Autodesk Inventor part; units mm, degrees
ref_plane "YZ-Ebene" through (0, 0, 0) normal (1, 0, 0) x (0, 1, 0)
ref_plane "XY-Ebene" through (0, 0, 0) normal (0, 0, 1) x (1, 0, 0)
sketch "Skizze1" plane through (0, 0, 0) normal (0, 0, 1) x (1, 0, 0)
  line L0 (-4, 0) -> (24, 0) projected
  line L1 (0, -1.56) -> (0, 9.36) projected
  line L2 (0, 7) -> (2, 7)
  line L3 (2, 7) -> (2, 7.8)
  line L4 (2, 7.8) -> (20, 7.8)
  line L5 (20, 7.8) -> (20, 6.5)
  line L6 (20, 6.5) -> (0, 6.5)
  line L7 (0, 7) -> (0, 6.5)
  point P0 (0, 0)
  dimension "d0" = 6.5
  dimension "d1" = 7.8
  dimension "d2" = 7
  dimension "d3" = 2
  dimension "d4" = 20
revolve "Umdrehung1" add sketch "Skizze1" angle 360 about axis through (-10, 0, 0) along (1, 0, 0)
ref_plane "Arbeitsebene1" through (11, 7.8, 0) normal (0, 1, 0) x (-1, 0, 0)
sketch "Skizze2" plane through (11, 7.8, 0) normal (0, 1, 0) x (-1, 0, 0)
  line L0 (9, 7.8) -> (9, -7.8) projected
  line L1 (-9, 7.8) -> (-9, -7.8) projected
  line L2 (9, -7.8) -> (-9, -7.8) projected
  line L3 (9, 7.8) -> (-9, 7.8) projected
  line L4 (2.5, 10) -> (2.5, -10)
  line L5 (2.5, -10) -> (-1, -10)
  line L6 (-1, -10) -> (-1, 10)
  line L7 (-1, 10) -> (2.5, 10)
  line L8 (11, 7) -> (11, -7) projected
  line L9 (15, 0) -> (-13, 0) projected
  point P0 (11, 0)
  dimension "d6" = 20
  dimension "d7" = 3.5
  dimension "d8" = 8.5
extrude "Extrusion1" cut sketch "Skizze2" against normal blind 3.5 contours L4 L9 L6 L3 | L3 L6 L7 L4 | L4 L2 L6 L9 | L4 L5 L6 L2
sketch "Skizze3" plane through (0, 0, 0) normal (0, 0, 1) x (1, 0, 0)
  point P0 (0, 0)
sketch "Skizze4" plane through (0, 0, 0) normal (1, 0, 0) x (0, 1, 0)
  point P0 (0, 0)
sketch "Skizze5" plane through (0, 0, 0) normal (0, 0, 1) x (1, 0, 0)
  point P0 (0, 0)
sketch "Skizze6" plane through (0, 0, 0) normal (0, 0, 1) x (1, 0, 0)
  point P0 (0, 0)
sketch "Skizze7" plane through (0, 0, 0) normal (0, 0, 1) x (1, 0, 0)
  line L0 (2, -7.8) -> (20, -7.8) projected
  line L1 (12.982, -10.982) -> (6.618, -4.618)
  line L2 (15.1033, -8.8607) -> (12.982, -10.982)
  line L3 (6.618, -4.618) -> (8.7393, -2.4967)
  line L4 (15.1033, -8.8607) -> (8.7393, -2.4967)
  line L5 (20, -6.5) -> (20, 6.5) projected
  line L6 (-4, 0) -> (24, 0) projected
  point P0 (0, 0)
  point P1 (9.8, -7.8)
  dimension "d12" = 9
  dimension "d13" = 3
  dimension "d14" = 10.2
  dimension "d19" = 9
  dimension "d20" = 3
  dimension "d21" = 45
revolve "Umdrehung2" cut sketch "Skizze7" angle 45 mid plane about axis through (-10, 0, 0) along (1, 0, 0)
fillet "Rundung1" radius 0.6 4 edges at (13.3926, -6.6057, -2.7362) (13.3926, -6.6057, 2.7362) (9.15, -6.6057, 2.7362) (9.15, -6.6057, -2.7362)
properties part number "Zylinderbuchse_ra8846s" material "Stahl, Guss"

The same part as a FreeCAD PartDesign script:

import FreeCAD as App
import Part
import Sketcher
Q = App.Units.Quantity


def edges_at(feature, points):
    """Names of the edges that pass closest to the given points."""
    edges = feature.Shape.Edges
    near = lambda p: min(range(len(edges)), key=lambda i: edges[i].distToShape(Part.Vertex(*p))[0])
    return sorted({f"Edge{near(p) + 1}" for p in points})

doc = App.newDocument("Part")
params = doc.addObject("Spreadsheet::Sheet", "Params")
for row, (alias, value) in enumerate([
    ("sketch1_width", "20 mm"),
    ("sketch1_width2", "2 mm"),
    ("revolution_angle", "360 deg"),
    ("sketch2_height", "20 mm"),
    ("sketch2_width", "3.5 mm"),
    ("pocket1_length", "3.5 mm"),
    ("sketch3_length", "9 mm"),
    ("sketch3_length2", "3 mm"),
    ("groove_angle", "45 deg"),
    ("fillet_radius", "0.6 mm"),
], start=1):
    params.set(f"A{row}", alias)
    params.set(f"B{row}", "=" + value)
    params.setAlias(f"B{row}", alias)

body = doc.addObject("PartDesign::Body", "Body")

# Sketch on XY plane
sketch1 = body.newObject("Sketcher::SketchObject", "Sketch")
sketch1.AttachmentSupport = (doc.getObject("XY_Plane"), [""])
sketch1.MapMode = "FlatFace"
sketch1.addGeometry(Part.LineSegment(App.Vector(0, 7, 0), App.Vector(0, 6.5, 0)), False)
sketch1.addGeometry(Part.LineSegment(App.Vector(0, 6.5, 0), App.Vector(20, 6.5, 0)), False)
sketch1.addGeometry(Part.LineSegment(App.Vector(20, 6.5, 0), App.Vector(20, 7.8, 0)), False)
sketch1.addGeometry(Part.LineSegment(App.Vector(20, 7.8, 0), App.Vector(2, 7.8, 0)), False)
sketch1.addGeometry(Part.LineSegment(App.Vector(2, 7.8, 0), App.Vector(2, 7, 0)), False)
sketch1.addGeometry(Part.LineSegment(App.Vector(2, 7, 0), App.Vector(0, 7, 0)), False)
sketch1.addConstraint(Sketcher.Constraint("Coincident", 0, 2, 1, 1))
sketch1.addConstraint(Sketcher.Constraint("Coincident", 1, 2, 2, 1))
sketch1.addConstraint(Sketcher.Constraint("Coincident", 2, 2, 3, 1))
sketch1.addConstraint(Sketcher.Constraint("Coincident", 3, 2, 4, 1))
sketch1.addConstraint(Sketcher.Constraint("Coincident", 4, 2, 5, 1))
sketch1.addConstraint(Sketcher.Constraint("Coincident", 5, 2, 0, 1))
sketch1.addConstraint(Sketcher.Constraint("Vertical", 0))
sketch1.addConstraint(Sketcher.Constraint("Horizontal", 1))
sketch1.addConstraint(Sketcher.Constraint("Vertical", 2))
sketch1.addConstraint(Sketcher.Constraint("Horizontal", 3))
sketch1.addConstraint(Sketcher.Constraint("Vertical", 4))
sketch1.addConstraint(Sketcher.Constraint("Horizontal", 5))
sketch1.addConstraint(Sketcher.Constraint("PointOnObject", 0, 2, -2))
sketch1.addConstraint(Sketcher.Constraint("DistanceX", 1, 1, 1, 2, 20.0))
sketch1.addConstraint(Sketcher.Constraint("DistanceX", 5, 2, 5, 1, 2.0))
sketch1.addConstraint(Sketcher.Constraint("DistanceY", -1, 1, 4, 2, 7.0))
sketch1.addConstraint(Sketcher.Constraint("DistanceY", -1, 1, 0, 2, 6.5))
sketch1.addConstraint(Sketcher.Constraint("DistanceY", -1, 1, 2, 2, 7.8))
sketch1.setExpression("Constraints[13]", "Params.sketch1_width")
sketch1.setExpression("Constraints[14]", "Params.sketch1_width2")
revolution = body.newObject("PartDesign::Revolution", "Revolution")
revolution.Profile = sketch1
revolution.ReferenceAxis = (sketch1, ["H_Axis"])
revolution.setExpression("Angle", "Params.revolution_angle")

# Sketch on XZ plane
sketch2 = body.newObject("Sketcher::SketchObject", "Sketch001")
sketch2.AttachmentSupport = (doc.getObject("XZ_Plane"), [""])
sketch2.MapMode = "FlatFace"
sketch2.AttachmentOffset = App.Placement(App.Vector(0, 0, -7.8), App.Rotation())
sketch2.addGeometry(Part.LineSegment(App.Vector(8.5, 10, 0), App.Vector(12, 10, 0)), False)
sketch2.addGeometry(Part.LineSegment(App.Vector(12, 10, 0), App.Vector(12, -10, 0)), False)
sketch2.addGeometry(Part.LineSegment(App.Vector(12, -10, 0), App.Vector(8.5, -10, 0)), False)
sketch2.addGeometry(Part.LineSegment(App.Vector(8.5, -10, 0), App.Vector(8.5, 10, 0)), False)
sketch2.addConstraint(Sketcher.Constraint("Coincident", 0, 2, 1, 1))
sketch2.addConstraint(Sketcher.Constraint("Coincident", 1, 2, 2, 1))
sketch2.addConstraint(Sketcher.Constraint("Coincident", 2, 2, 3, 1))
sketch2.addConstraint(Sketcher.Constraint("Coincident", 3, 2, 0, 1))
sketch2.addConstraint(Sketcher.Constraint("Horizontal", 0))
sketch2.addConstraint(Sketcher.Constraint("Vertical", 1))
sketch2.addConstraint(Sketcher.Constraint("Horizontal", 2))
sketch2.addConstraint(Sketcher.Constraint("Vertical", 3))
sketch2.addConstraint(Sketcher.Constraint("DistanceY", 1, 2, 1, 1, 20.0))
sketch2.addConstraint(Sketcher.Constraint("DistanceX", 0, 1, 0, 2, 3.5))
sketch2.addConstraint(Sketcher.Constraint("DistanceX", -1, 1, 2, 2, 8.5))
sketch2.addConstraint(Sketcher.Constraint("DistanceY", -1, 1, 0, 2, 10.0))
sketch2.setExpression("Constraints[8]", "Params.sketch2_height")
sketch2.setExpression("Constraints[9]", "Params.sketch2_width")
pocket1 = body.newObject("PartDesign::Pocket", "Pocket")
pocket1.Profile = sketch2
pocket1.setExpression("Length", "Params.pocket1_length")
pocket1.Reversed = True

# Sketch on XY plane
sketch3 = body.newObject("Sketcher::SketchObject", "Sketch002")
sketch3.AttachmentSupport = (doc.getObject("XY_Plane"), [""])
sketch3.MapMode = "FlatFace"
sketch3.addGeometry(Part.LineSegment(App.Vector(6.618, -4.618, 0), App.Vector(12.982, -10.982, 0)), False)
sketch3.addGeometry(Part.LineSegment(App.Vector(12.982, -10.982, 0), App.Vector(15.1033, -8.8607, 0)), False)
sketch3.addGeometry(Part.LineSegment(App.Vector(15.1033, -8.8607, 0), App.Vector(8.7393, -2.4967, 0)), False)
sketch3.addGeometry(Part.LineSegment(App.Vector(8.7393, -2.4967, 0), App.Vector(6.618, -4.618, 0)), False)
sketch3.addConstraint(Sketcher.Constraint("Coincident", 0, 2, 1, 1))
sketch3.addConstraint(Sketcher.Constraint("Coincident", 1, 2, 2, 1))
sketch3.addConstraint(Sketcher.Constraint("Coincident", 2, 2, 3, 1))
sketch3.addConstraint(Sketcher.Constraint("Coincident", 3, 2, 0, 1))
sketch3.addConstraint(Sketcher.Constraint("Perpendicular", 0, 1))
sketch3.addConstraint(Sketcher.Constraint("Perpendicular", 1, 2))
sketch3.addConstraint(Sketcher.Constraint("Perpendicular", 2, 3))
sketch3.addConstraint(Sketcher.Constraint("Angle", 0, Q("-45 deg")))
sketch3.addConstraint(Sketcher.Constraint("Distance", 0, 9.0))
sketch3.addConstraint(Sketcher.Constraint("Distance", 1, 3.0))
sketch3.addConstraint(Sketcher.Constraint("DistanceX", -1, 1, 0, 2, 12.982))
sketch3.addConstraint(Sketcher.Constraint("DistanceY", 0, 2, -1, 1, 10.982))
sketch3.setExpression("Constraints[8]", "Params.sketch3_length")
sketch3.setExpression("Constraints[9]", "Params.sketch3_length2")
groove = body.newObject("PartDesign::Groove", "Groove")
groove.Profile = sketch3
groove.ReferenceAxis = (sketch3, ["H_Axis"])
groove.setExpression("Angle", "Params.groove_angle")
groove.Midplane = True
doc.recompute()

fillet = body.newObject("PartDesign::Fillet", "Fillet")
fillet.Base = (groove, edges_at(groove, [
    (13.393, -6.606, -2.736),
    (13.393, -6.606, 2.736),
    (9.15, -6.606, 2.736),
    (9.15, -6.606, -2.736),
]))
fillet.setExpression("Radius", "Params.fillet_radius")

doc.recompute()
